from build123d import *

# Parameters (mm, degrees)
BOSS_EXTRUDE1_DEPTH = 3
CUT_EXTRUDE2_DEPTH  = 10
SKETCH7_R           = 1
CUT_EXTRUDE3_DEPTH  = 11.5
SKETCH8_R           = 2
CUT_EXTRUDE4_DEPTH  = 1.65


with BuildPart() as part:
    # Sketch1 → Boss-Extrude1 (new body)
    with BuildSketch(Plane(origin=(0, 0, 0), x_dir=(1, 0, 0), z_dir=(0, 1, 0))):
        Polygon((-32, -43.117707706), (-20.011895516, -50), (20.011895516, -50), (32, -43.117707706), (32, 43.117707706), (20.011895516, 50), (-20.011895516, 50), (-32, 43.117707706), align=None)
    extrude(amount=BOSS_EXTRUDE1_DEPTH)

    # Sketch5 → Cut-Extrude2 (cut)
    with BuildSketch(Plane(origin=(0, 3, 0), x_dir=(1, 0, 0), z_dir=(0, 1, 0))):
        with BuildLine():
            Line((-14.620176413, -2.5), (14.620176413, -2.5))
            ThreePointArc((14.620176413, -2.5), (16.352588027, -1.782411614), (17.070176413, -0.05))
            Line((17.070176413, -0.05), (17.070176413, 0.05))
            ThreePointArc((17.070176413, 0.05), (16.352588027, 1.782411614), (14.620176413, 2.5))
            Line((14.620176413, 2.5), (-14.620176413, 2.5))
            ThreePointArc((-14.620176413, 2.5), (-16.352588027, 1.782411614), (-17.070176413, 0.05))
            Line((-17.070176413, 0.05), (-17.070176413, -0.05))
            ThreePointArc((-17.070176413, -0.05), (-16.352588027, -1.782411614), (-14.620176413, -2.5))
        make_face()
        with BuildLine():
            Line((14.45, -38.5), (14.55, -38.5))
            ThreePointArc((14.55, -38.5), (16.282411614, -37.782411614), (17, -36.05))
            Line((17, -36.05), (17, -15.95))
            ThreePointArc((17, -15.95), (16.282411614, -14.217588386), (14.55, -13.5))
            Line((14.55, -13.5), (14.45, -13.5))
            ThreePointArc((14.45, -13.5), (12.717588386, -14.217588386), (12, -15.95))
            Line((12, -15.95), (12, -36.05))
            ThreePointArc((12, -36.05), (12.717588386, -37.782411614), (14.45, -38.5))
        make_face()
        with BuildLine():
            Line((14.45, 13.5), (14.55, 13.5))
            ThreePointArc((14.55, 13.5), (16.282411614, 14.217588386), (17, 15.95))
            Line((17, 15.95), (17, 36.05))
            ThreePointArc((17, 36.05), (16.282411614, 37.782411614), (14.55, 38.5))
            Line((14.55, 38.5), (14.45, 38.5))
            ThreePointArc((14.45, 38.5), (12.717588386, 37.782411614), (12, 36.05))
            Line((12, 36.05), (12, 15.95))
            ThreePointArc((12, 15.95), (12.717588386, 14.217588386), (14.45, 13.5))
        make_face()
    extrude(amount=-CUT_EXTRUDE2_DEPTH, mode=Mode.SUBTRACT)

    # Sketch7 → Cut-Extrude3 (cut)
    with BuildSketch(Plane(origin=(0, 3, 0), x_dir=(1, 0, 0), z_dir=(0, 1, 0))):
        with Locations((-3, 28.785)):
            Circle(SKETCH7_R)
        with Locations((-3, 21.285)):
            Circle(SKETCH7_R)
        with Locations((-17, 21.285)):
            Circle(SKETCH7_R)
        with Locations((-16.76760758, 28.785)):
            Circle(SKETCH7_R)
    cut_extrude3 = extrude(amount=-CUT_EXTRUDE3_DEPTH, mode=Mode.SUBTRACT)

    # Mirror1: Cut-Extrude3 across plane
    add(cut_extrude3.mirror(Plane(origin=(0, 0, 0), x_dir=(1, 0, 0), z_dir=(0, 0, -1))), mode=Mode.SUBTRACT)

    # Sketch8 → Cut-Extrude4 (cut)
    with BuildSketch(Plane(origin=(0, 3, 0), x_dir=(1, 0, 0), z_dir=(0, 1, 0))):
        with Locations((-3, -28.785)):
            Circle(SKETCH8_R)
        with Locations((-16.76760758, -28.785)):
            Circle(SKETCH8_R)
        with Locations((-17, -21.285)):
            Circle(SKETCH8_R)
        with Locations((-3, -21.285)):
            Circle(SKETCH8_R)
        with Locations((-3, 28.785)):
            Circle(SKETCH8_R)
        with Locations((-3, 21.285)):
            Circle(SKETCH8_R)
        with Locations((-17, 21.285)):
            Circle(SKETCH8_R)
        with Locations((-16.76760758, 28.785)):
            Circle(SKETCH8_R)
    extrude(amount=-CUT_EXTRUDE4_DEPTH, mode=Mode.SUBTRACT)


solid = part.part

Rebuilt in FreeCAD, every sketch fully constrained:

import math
import FreeCAD as App
import Part
import Sketcher
Q = App.Units.Quantity

doc = App.newDocument("Part")
body = doc.addObject("PartDesign::Body", "Body")

# Sketch on XZ plane
sketch1 = body.newObject("Sketcher::SketchObject", "Sketch")
sketch1.AttachmentSupport = (doc.getObject("XZ_Plane"), [""])
sketch1.MapMode = "FlatFace"
sketch1.addGeometry([
    Part.LineSegment(App.Vector(-32, 43, 0), App.Vector(-20, 50, 0)),  # 0
    Part.LineSegment(App.Vector(-20, 50, 0), App.Vector(20, 50, 0)),  # 1
    Part.LineSegment(App.Vector(20, 50, 0), App.Vector(32, 43, 0)),  # 2
    Part.LineSegment(App.Vector(32, 43, 0), App.Vector(32, -43, 0)),  # 3
    Part.LineSegment(App.Vector(32, -43, 0), App.Vector(20, -50, 0)),  # 4
    Part.LineSegment(App.Vector(20, -50, 0), App.Vector(-20, -50, 0)),  # 5
    Part.LineSegment(App.Vector(-20, -50, 0), App.Vector(-32, -43, 0)),  # 6
    Part.LineSegment(App.Vector(-32, -43, 0), App.Vector(-32, 43, 0)),  # 7
], False)
sketch1.addConstraint([
    Sketcher.Constraint("Coincident", 0, 2, 1, 1),
    Sketcher.Constraint("Coincident", 1, 2, 2, 1),
    Sketcher.Constraint("Coincident", 2, 2, 3, 1),
    Sketcher.Constraint("Coincident", 3, 2, 4, 1),
    Sketcher.Constraint("Coincident", 4, 2, 5, 1),
    Sketcher.Constraint("Coincident", 5, 2, 6, 1),
    Sketcher.Constraint("Coincident", 6, 2, 7, 1),
    Sketcher.Constraint("Coincident", 7, 2, 0, 1),
    Sketcher.Constraint("Horizontal", 1),
    Sketcher.Constraint("Vertical", 3),
    Sketcher.Constraint("Horizontal", 5),
    Sketcher.Constraint("Vertical", 7),
    Sketcher.Constraint("Symmetric", 0, 2, 4, 2, -1, 1),
    Sketcher.Constraint("Symmetric", 2, 2, 6, 2, -1, 1),
    Sketcher.Constraint("Parallel", 0, 4),
    Sketcher.Constraint("Parallel", 2, 6),
    Sketcher.Constraint("Horizontal", 3, 2, 6, 2),
    Sketcher.Constraint("Vertical", 1, 2, 4, 2),
    Sketcher.Constraint("DistanceY", -1, 1, 0, 2, Q("50 mm")),
    Sketcher.Constraint("DistanceX", -1, 1, 2, 2, Q("32 mm")),
    Sketcher.Constraint("DistanceX", 1, 1, 1, 2, Q("40.023791 mm")),
    Sketcher.Constraint("Distance", 0, Q("13.823191 mm")),
])
pad1 = body.newObject("PartDesign::Pad", "Pad")
pad1.Profile = sketch1
pad1.Length = 3
pad1.Reversed = True

# Sketch on XZ plane
sketch2 = body.newObject("Sketcher::SketchObject", "Sketch001")
sketch2.AttachmentSupport = (doc.getObject("XZ_Plane"), [""])
sketch2.MapMode = "FlatFace"
sketch2.AttachmentOffset = App.Placement(App.Vector(0, 0, -3), App.Rotation())
sketch2.addGeometry([
    Part.LineSegment(App.Vector(-14.62, 2.5, 0), App.Vector(14.62, 2.5, 0)),  # 0
    Part.ArcOfCircle(Part.Circle(App.Vector(14.62, 0.05, 0), App.Vector(0, 0, 1), 2.45), math.radians(0), math.radians(90)),  # 1
    Part.LineSegment(App.Vector(17.07, 0.05, 0), App.Vector(17.07, -0.05, 0)),  # 2
    Part.ArcOfCircle(Part.Circle(App.Vector(14.62, -0.05, 0), App.Vector(0, 0, 1), 2.45), math.radians(-90), math.radians(0)),  # 3
    Part.LineSegment(App.Vector(14.62, -2.5, 0), App.Vector(-14.62, -2.5, 0)),  # 4
    Part.ArcOfCircle(Part.Circle(App.Vector(-14.62, -0.05, 0), App.Vector(0, 0, 1), 2.45), math.radians(180), math.radians(270)),  # 5
    Part.LineSegment(App.Vector(-17.07, -0.05, 0), App.Vector(-17.07, 0.05, 0)),  # 6
    Part.ArcOfCircle(Part.Circle(App.Vector(-14.62, 0.05, 0), App.Vector(0, 0, 1), 2.45), math.radians(90), math.radians(180)),  # 7
    Part.LineSegment(App.Vector(14.45, 38.5, 0), App.Vector(14.55, 38.5, 0)),  # 8
    Part.ArcOfCircle(Part.Circle(App.Vector(14.55, 36.05, 0), App.Vector(0, 0, 1), 2.45), math.radians(0), math.radians(90)),  # 9
    Part.LineSegment(App.Vector(17, 36.05, 0), App.Vector(17, 15.95, 0)),  # 10
    Part.ArcOfCircle(Part.Circle(App.Vector(14.55, 15.95, 0), App.Vector(0, 0, 1), 2.45), math.radians(-90), math.radians(0)),  # 11
    Part.LineSegment(App.Vector(14.55, 13.5, 0), App.Vector(14.45, 13.5, 0)),  # 12
    Part.ArcOfCircle(Part.Circle(App.Vector(14.45, 15.95, 0), App.Vector(0, 0, 1), 2.45), math.radians(180), math.radians(270)),  # 13
    Part.LineSegment(App.Vector(12, 15.95, 0), App.Vector(12, 36.05, 0)),  # 14
    Part.ArcOfCircle(Part.Circle(App.Vector(14.45, 36.05, 0), App.Vector(0, 0, 1), 2.45), math.radians(90), math.radians(180)),  # 15
    Part.LineSegment(App.Vector(14.45, -13.5, 0), App.Vector(14.55, -13.5, 0)),  # 16
    Part.ArcOfCircle(Part.Circle(App.Vector(14.55, -15.95, 0), App.Vector(0, 0, 1), 2.45), math.radians(0), math.radians(90)),  # 17
    Part.LineSegment(App.Vector(17, -15.95, 0), App.Vector(17, -36.05, 0)),  # 18
    Part.ArcOfCircle(Part.Circle(App.Vector(14.55, -36.05, 0), App.Vector(0, 0, 1), 2.45), math.radians(-90), math.radians(0)),  # 19
    Part.LineSegment(App.Vector(14.55, -38.5, 0), App.Vector(14.45, -38.5, 0)),  # 20
    Part.ArcOfCircle(Part.Circle(App.Vector(14.45, -36.05, 0), App.Vector(0, 0, 1), 2.45), math.radians(180), math.radians(270)),  # 21
    Part.LineSegment(App.Vector(12, -36.05, 0), App.Vector(12, -15.95, 0)),  # 22
    Part.ArcOfCircle(Part.Circle(App.Vector(14.45, -15.95, 0), App.Vector(0, 0, 1), 2.45), math.radians(90), math.radians(180)),  # 23
], False)
sketch2.addConstraint([
    Sketcher.Constraint("Tangent", 0, 2, 1, 2),
    Sketcher.Constraint("Tangent", 1, 1, 2, 1),
    Sketcher.Constraint("Tangent", 2, 2, 3, 2),
    Sketcher.Constraint("Tangent", 3, 1, 4, 1),
    Sketcher.Constraint("Tangent", 4, 2, 5, 2),
    Sketcher.Constraint("Tangent", 5, 1, 6, 1),
    Sketcher.Constraint("Tangent", 6, 2, 7, 2),
    Sketcher.Constraint("Tangent", 7, 1, 0, 1),
    Sketcher.Constraint("Tangent", 8, 2, 9, 2),
    Sketcher.Constraint("Tangent", 9, 1, 10, 1),
    Sketcher.Constraint("Tangent", 10, 2, 11, 2),
    Sketcher.Constraint("Tangent", 11, 1, 12, 1),
    Sketcher.Constraint("Tangent", 12, 2, 13, 2),
    Sketcher.Constraint("Tangent", 13, 1, 14, 1),
    Sketcher.Constraint("Tangent", 14, 2, 15, 2),
    Sketcher.Constraint("Tangent", 15, 1, 8, 1),
    Sketcher.Constraint("Tangent", 16, 2, 17, 2),
    Sketcher.Constraint("Tangent", 17, 1, 18, 1),
    Sketcher.Constraint("Tangent", 18, 2, 19, 2),
    Sketcher.Constraint("Tangent", 19, 1, 20, 1),
    Sketcher.Constraint("Tangent", 20, 2, 21, 2),
    Sketcher.Constraint("Tangent", 21, 1, 22, 1),
    Sketcher.Constraint("Tangent", 22, 2, 23, 2),
    Sketcher.Constraint("Tangent", 23, 1, 16, 1),
    Sketcher.Constraint("Horizontal", 0),
    Sketcher.Constraint("Vertical", 2),
    Sketcher.Constraint("Horizontal", 4),
    Sketcher.Constraint("Vertical", 6),
    Sketcher.Constraint("Horizontal", 8),
    Sketcher.Constraint("Vertical", 10),
    Sketcher.Constraint("Horizontal", 12),
    Sketcher.Constraint("Vertical", 14),
    Sketcher.Constraint("Horizontal", 16),
    Sketcher.Constraint("Vertical", 18),
    Sketcher.Constraint("Horizontal", 20),
    Sketcher.Constraint("Vertical", 22),
    Sketcher.Constraint("Equal", 1, 3),
    Sketcher.Constraint("Equal", 3, 5),
    Sketcher.Constraint("Equal", 5, 7),
    Sketcher.Constraint("Equal", 7, 9),
    Sketcher.Constraint("Equal", 9, 11),
    Sketcher.Constraint("Equal", 11, 13),
    Sketcher.Constraint("Equal", 13, 15),
    Sketcher.Constraint("Equal", 15, 17),
    Sketcher.Constraint("Equal", 17, 19),
    Sketcher.Constraint("Equal", 19, 21),
    Sketcher.Constraint("Equal", 21, 23),
    Sketcher.Constraint("Symmetric", 1, 3, 5, 3, -1, 1),
    Sketcher.Constraint("Symmetric", 11, 3, 17, 3, -1),
    Sketcher.Constraint("Symmetric", 15, 3, 21, 3, -1),
    Sketcher.Constraint("Equal", 20, 2),
    Sketcher.Constraint("Radius", 1, Q("2.45 mm")),
    Sketcher.Constraint("DistanceX", 8, 1, 8, 2, Q("0.1 mm")),
    Sketcher.Constraint("DistanceY", 10, 2, 10, 1, Q("20.1 mm")),
    Sketcher.Constraint("DistanceX", -1, 1, 9, 1, Q("17 mm")),
    Sketcher.Constraint("DistanceY", 1, 3, 9, 3, Q("36 mm")),
    Sketcher.Constraint("DistanceX", 0, 1, 0, 2, Q("29.240353 mm")),
])
pocket1 = body.newObject("PartDesign::Pocket", "Pocket")
pocket1.Profile = sketch2
pocket1.Length = 10
pocket1.Reversed = True

# Sketch on XZ plane
sketch3 = body.newObject("Sketcher::SketchObject", "Sketch002")
sketch3.AttachmentSupport = (doc.getObject("XZ_Plane"), [""])
sketch3.MapMode = "FlatFace"
sketch3.AttachmentOffset = App.Placement(App.Vector(0, 0, -3), App.Rotation())
sketch3.addGeometry([
    Part.Circle(App.Vector(-3, -28.8, 0), App.Vector(0, 0, 1), 1),
    Part.Circle(App.Vector(-3, -21.3, 0), App.Vector(0, 0, 1), 1),
    Part.Circle(App.Vector(-17, -21.3, 0), App.Vector(0, 0, 1), 1),
    Part.Circle(App.Vector(-16.8, -28.8, 0), App.Vector(0, 0, 1), 1),
], False)
sketch3.addConstraint([
    Sketcher.Constraint("Equal", 0, 1),
    Sketcher.Constraint("Equal", 1, 2),
    Sketcher.Constraint("Equal", 2, 3),
    Sketcher.Constraint("Horizontal", 1, 3, 2, 3),
    Sketcher.Constraint("Horizontal", 0, 3, 3, 3),
    Sketcher.Constraint("Vertical", 0, 3, 1, 3),
    Sketcher.Constraint("Diameter", 0, Q("2 mm")),
    Sketcher.Constraint("DistanceX", 0, 3, -1, 1, Q("3 mm")),
    Sketcher.Constraint("DistanceX", 2, 3, -1, 1, Q("17 mm")),
    Sketcher.Constraint("DistanceY", 0, 3, 1, 3, Q("7.5 mm")),
    Sketcher.Constraint("DistanceY", 0, 3, -1, 1, Q("28.785 mm")),
    Sketcher.Constraint("DistanceX", 3, 3, -1, 1, Q("16.767608 mm")),
])
pocket2 = body.newObject("PartDesign::Pocket", "Pocket001")
pocket2.Profile = sketch3
pocket2.Length = 11.5
pocket2.Reversed = True
doc.recompute()

mirrored = body.newObject("PartDesign::Mirrored", "Mirrored")
mirrored.Originals = [pocket2]
mirrored.MirrorPlane = (doc.getObject("XY_Plane"), [""])
body.Tip = mirrored

# Sketch on XZ plane
sketch4 = body.newObject("Sketcher::SketchObject", "Sketch003")
sketch4.AttachmentSupport = (doc.getObject("XZ_Plane"), [""])
sketch4.MapMode = "FlatFace"
sketch4.AttachmentOffset = App.Placement(App.Vector(0, 0, -3), App.Rotation())
sketch4.addGeometry([
    Part.Circle(App.Vector(-3, 28.8, 0), App.Vector(0, 0, 1), 2),  # 0
    Part.Circle(App.Vector(-16.8, 28.8, 0), App.Vector(0, 0, 1), 2),  # 1
    Part.Circle(App.Vector(-17, 21.3, 0), App.Vector(0, 0, 1), 2),  # 2
    Part.Circle(App.Vector(-3, 21.3, 0), App.Vector(0, 0, 1), 2),  # 3
    Part.Circle(App.Vector(-3, -28.8, 0), App.Vector(0, 0, 1), 2),  # 4
    Part.Circle(App.Vector(-3, -21.3, 0), App.Vector(0, 0, 1), 2),  # 5
    Part.Circle(App.Vector(-17, -21.3, 0), App.Vector(0, 0, 1), 2),  # 6
    Part.Circle(App.Vector(-16.8, -28.8, 0), App.Vector(0, 0, 1), 2),  # 7
], False)
sketch4.addConstraint([
    Sketcher.Constraint("Equal", 0, 1),
    Sketcher.Constraint("Equal", 1, 2),
    Sketcher.Constraint("Equal", 2, 3),
    Sketcher.Constraint("Equal", 3, 4),
    Sketcher.Constraint("Equal", 4, 5),
    Sketcher.Constraint("Equal", 5, 6),
    Sketcher.Constraint("Equal", 6, 7),
    Sketcher.Constraint("Symmetric", 0, 3, 4, 3, -1),
    Sketcher.Constraint("Symmetric", 3, 3, 5, 3, -1),
    Sketcher.Constraint("Symmetric", 2, 3, 6, 3, -1),
    Sketcher.Constraint("Symmetric", 1, 3, 7, 3, -1),
    Sketcher.Constraint("Horizontal", 0, 3, 1, 3),
    Sketcher.Constraint("Horizontal", 2, 3, 3, 3),
    Sketcher.Constraint("Vertical", 0, 3, 3, 3),
    Sketcher.Constraint("Diameter", 0, Q("4 mm")),
    Sketcher.Constraint("DistanceX", 0, 3, -1, 1, Q("3 mm")),
    Sketcher.Constraint("DistanceX", 2, 3, -1, 1, Q("17 mm")),
    Sketcher.Constraint("DistanceY", 2, 3, 1, 3, Q("7.5 mm")),
    Sketcher.Constraint("DistanceY", 4, 3, 3, 3, Q("50.07 mm")),
    Sketcher.Constraint("DistanceX", 1, 3, -1, 1, Q("16.767608 mm")),
])
pocket3 = body.newObject("PartDesign::Pocket", "Pocket002")
pocket3.Profile = sketch4
pocket3.Length = 1.65
pocket3.Reversed = True

doc.recompute()
